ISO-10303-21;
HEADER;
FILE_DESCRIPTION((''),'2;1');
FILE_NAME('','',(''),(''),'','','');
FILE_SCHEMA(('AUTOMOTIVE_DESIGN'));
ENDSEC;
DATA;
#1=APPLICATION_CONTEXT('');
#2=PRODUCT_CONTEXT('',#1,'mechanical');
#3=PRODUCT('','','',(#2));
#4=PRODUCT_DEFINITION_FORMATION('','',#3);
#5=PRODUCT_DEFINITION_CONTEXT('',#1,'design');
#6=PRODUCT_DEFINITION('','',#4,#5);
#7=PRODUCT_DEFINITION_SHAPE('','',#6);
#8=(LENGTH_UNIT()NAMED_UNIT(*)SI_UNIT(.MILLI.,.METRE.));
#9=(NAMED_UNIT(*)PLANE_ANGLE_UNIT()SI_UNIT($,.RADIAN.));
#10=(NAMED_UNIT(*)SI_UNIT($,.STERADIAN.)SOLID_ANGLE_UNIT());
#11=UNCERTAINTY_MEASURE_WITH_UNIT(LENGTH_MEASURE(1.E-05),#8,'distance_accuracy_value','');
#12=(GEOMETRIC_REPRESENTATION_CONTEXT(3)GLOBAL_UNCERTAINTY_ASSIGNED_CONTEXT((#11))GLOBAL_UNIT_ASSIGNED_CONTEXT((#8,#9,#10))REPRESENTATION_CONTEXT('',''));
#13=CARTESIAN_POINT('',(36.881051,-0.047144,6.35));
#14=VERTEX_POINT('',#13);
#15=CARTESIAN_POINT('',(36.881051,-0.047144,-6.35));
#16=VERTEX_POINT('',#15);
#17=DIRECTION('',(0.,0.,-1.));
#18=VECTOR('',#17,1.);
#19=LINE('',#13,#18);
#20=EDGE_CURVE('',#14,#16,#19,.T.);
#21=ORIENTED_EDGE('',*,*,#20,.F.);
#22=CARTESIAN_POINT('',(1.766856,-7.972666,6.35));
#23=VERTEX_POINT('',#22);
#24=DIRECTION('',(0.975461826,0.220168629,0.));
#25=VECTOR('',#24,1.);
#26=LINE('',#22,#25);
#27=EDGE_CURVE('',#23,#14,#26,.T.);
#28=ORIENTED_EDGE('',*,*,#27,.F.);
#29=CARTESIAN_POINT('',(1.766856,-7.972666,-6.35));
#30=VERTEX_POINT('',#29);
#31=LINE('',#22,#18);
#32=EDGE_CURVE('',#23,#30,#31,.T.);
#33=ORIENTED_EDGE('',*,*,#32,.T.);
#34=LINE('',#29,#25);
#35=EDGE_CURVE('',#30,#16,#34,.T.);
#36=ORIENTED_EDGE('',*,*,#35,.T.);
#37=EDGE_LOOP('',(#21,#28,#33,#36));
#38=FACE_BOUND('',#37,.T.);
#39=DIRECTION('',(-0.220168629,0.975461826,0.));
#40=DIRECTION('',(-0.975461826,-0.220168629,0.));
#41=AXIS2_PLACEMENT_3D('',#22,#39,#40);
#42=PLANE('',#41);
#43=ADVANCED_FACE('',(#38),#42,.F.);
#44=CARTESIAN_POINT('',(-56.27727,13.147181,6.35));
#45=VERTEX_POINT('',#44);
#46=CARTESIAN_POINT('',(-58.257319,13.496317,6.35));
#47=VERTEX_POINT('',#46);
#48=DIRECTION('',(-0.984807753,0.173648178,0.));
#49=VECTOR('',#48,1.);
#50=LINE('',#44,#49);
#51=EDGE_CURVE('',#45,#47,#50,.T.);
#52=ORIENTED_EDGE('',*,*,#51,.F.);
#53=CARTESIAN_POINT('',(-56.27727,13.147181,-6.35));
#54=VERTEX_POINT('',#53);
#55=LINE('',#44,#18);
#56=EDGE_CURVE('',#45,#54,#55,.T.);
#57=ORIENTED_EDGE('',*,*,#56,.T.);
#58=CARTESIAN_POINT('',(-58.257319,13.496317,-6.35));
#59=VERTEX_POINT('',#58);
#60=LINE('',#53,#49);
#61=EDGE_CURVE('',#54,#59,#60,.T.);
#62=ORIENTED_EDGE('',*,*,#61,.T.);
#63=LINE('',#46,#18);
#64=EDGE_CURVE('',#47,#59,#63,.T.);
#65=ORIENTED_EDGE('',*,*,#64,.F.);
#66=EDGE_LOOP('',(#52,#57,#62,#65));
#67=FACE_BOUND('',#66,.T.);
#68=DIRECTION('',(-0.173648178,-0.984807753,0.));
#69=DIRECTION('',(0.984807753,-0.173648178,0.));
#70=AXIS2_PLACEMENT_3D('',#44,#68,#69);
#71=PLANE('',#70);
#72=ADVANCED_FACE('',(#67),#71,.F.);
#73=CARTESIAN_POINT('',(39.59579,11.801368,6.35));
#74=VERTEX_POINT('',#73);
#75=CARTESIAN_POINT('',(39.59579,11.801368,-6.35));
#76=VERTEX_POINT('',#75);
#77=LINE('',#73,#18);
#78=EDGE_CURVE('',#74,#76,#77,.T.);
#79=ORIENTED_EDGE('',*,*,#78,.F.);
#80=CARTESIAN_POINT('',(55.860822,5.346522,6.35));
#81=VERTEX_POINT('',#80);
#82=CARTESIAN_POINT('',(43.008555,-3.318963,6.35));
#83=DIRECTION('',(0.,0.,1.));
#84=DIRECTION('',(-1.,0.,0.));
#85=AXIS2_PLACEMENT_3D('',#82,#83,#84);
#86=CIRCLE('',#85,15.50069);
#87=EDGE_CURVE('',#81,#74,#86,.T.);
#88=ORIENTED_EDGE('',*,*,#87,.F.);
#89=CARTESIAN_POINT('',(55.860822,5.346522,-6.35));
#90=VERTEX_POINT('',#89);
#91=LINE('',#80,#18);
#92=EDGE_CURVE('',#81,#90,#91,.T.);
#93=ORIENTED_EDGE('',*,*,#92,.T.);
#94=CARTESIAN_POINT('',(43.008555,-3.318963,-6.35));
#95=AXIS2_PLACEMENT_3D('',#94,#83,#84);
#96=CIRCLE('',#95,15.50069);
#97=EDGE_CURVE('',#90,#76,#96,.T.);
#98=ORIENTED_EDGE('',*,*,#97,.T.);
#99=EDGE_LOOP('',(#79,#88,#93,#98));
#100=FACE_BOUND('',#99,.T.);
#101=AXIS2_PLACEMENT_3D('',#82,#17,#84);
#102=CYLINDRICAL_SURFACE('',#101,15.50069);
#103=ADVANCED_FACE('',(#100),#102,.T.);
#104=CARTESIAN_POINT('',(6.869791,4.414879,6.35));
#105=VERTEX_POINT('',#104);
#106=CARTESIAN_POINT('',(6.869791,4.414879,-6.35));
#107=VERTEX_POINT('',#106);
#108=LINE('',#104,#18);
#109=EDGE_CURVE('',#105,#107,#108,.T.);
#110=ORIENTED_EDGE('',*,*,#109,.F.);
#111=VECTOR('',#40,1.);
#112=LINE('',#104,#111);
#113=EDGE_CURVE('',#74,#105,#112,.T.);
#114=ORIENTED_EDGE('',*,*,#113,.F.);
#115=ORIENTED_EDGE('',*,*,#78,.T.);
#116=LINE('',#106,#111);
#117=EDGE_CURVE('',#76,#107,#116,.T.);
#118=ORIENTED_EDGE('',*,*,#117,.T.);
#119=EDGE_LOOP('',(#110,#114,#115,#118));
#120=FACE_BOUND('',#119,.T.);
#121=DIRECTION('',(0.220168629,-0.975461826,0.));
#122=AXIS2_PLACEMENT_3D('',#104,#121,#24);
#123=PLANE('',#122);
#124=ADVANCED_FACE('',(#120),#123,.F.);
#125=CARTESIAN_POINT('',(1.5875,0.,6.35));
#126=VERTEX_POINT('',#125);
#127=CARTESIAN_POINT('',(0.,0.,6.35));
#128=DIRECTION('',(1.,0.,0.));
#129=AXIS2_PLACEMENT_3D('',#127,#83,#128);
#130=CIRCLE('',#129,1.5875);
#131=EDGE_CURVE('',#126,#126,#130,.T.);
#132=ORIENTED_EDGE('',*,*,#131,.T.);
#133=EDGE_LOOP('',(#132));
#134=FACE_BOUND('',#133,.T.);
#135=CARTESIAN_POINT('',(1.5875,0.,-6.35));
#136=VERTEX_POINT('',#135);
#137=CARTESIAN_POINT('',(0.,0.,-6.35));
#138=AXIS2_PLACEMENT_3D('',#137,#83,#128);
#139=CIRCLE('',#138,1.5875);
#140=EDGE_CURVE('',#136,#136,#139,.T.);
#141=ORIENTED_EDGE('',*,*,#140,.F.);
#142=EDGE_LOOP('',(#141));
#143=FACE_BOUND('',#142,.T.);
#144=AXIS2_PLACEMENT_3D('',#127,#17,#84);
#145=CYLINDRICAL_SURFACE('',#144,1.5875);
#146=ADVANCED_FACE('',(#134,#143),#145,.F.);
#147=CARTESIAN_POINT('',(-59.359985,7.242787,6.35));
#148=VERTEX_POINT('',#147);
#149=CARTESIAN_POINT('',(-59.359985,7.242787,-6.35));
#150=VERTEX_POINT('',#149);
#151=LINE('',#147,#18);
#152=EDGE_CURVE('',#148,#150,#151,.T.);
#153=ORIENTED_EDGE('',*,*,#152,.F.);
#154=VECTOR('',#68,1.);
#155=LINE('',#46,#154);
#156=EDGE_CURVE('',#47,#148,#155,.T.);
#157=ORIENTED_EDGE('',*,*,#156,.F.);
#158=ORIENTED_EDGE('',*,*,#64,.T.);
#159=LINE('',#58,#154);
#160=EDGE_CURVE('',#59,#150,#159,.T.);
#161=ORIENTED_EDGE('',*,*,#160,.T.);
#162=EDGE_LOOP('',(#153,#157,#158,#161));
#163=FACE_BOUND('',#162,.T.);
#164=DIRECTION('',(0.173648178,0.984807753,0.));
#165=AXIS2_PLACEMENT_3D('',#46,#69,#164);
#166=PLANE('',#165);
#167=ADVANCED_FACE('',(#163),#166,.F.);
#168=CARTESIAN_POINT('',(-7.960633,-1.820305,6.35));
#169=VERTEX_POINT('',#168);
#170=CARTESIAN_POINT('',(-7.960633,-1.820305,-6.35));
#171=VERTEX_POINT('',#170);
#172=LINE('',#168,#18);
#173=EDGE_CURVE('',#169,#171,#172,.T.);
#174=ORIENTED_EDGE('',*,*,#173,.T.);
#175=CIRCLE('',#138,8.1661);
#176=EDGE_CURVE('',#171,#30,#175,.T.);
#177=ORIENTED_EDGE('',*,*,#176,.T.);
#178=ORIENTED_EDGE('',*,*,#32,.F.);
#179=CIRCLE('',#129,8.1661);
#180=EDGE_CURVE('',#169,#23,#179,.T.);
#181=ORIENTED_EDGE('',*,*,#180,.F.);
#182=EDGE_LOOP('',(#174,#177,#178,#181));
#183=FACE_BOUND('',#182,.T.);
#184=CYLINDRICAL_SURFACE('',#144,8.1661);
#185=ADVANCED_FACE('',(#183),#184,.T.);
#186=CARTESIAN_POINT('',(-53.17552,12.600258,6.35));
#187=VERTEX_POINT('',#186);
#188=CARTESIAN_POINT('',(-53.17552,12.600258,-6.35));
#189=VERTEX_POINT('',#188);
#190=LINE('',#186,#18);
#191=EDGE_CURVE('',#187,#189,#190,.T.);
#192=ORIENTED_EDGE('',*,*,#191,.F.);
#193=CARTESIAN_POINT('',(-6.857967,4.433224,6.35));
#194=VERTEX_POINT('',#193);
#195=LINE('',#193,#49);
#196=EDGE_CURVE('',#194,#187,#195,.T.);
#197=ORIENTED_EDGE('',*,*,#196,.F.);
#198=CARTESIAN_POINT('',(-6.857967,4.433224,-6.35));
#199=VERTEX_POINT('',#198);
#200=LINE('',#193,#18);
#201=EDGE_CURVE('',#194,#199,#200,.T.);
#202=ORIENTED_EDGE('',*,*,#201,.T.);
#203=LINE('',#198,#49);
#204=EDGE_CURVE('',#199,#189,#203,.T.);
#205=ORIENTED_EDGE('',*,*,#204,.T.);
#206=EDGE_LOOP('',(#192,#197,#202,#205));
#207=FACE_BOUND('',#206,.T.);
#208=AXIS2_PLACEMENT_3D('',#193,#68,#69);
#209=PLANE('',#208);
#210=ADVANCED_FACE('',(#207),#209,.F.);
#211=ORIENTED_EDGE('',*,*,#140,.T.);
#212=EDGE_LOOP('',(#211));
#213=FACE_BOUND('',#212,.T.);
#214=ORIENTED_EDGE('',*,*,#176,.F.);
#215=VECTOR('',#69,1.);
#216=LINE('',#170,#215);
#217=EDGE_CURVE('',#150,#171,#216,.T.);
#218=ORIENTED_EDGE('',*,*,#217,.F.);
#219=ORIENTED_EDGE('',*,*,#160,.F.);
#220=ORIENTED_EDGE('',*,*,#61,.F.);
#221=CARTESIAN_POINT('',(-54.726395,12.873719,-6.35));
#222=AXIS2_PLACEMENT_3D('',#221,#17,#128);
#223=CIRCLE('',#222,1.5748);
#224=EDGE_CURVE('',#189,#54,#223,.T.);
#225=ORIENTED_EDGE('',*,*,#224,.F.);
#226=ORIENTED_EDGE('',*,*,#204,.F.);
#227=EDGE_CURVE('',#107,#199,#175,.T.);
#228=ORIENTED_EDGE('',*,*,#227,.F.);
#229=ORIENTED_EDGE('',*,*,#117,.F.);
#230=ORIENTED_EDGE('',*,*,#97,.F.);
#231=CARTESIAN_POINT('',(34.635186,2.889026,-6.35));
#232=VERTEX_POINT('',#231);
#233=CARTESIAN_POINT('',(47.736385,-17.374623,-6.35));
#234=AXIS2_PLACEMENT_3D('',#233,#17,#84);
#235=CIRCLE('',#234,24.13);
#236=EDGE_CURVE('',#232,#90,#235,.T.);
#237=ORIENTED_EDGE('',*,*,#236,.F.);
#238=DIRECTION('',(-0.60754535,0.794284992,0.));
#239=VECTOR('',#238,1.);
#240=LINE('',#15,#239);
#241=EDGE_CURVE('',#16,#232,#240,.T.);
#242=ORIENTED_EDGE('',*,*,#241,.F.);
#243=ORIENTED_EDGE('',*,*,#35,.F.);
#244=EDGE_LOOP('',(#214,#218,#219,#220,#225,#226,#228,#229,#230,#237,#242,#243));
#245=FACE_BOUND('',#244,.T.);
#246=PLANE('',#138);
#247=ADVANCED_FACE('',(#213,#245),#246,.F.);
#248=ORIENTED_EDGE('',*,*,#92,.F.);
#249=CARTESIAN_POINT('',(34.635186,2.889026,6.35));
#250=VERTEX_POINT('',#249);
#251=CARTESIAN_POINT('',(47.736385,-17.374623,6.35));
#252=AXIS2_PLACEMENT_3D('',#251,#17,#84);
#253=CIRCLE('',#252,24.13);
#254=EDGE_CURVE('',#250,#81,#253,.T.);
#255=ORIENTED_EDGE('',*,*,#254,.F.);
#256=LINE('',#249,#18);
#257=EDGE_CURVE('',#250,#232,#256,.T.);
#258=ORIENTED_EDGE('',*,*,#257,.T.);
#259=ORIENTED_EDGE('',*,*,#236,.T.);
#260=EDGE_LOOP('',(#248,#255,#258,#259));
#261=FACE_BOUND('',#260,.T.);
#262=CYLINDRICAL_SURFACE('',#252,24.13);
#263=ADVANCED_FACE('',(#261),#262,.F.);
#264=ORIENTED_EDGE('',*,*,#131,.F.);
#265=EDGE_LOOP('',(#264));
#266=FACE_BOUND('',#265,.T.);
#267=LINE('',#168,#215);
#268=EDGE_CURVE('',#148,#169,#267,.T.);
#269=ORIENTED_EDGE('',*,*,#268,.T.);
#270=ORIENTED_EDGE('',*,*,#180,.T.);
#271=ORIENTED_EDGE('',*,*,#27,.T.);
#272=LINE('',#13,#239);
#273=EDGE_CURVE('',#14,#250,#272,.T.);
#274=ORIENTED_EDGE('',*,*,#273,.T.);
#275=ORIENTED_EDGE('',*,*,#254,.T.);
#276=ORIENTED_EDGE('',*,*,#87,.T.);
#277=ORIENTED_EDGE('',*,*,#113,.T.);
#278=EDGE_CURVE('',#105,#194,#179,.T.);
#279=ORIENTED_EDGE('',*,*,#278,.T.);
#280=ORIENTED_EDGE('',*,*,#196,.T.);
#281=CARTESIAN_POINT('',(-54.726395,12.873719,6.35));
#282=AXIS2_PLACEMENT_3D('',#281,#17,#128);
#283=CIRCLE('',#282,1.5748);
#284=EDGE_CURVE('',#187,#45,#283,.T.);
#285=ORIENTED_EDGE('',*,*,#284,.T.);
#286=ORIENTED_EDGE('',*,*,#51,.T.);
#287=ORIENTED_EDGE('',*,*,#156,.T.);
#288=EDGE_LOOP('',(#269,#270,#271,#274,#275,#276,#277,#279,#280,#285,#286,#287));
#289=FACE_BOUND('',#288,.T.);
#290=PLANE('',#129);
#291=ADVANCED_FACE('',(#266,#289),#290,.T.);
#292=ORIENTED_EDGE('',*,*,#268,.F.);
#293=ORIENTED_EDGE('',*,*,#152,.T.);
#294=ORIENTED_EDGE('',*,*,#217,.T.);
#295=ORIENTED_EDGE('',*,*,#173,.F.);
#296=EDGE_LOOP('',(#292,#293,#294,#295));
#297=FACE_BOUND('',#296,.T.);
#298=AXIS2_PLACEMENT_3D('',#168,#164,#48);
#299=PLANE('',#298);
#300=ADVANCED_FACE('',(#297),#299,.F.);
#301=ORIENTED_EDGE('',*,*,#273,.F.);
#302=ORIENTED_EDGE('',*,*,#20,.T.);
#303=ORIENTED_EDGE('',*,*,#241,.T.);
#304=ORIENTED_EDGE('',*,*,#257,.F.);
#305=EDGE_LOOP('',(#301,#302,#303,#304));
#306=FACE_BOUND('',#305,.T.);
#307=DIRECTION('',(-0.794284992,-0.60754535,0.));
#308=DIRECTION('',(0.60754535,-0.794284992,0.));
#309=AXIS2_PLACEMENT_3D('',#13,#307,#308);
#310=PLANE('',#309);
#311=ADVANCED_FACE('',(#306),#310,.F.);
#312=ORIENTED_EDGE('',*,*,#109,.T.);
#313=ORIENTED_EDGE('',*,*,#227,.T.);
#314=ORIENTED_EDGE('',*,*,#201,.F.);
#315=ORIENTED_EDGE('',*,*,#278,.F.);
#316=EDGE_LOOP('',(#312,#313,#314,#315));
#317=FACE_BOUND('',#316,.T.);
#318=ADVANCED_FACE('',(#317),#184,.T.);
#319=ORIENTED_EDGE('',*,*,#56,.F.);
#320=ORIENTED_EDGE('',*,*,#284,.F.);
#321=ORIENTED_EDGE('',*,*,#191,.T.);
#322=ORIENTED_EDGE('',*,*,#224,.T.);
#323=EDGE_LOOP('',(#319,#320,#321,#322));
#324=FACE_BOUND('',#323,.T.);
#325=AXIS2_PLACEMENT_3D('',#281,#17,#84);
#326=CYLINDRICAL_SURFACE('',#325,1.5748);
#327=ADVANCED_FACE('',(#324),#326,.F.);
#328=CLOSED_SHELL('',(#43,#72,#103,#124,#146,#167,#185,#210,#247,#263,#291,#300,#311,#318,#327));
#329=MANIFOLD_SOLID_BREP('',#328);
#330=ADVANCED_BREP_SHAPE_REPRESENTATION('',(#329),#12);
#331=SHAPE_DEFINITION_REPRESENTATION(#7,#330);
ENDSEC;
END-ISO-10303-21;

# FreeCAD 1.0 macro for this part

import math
import FreeCAD as App
import Part
import Sketcher

V = App.Vector
Q = App.Units.Quantity

doc = App.newDocument("Part")
body = doc.addObject("PartDesign::Body", "Body")

sketch1 = body.newObject("Sketcher::SketchObject", "Sketch")
sketch1.AttachmentSupport = (doc.getObject("XY_Plane"), [""])
sketch1.MapMode = "FlatFace"
sketch1.addGeometry(Part.LineSegment(V(-6.9, 4.4, 0), V(-53.2, 12.6, 0)), False)
sketch1.addGeometry(Part.ArcOfCircle(Part.Circle(V(-54.7, 12.9, 0), V(0, 0, 1), 1.6), math.radians(170), math.radians(350)), False)
sketch1.addGeometry(Part.LineSegment(V(-56.3, 13.1, 0), V(-58.3, 13.5, 0)), False)
sketch1.addGeometry(Part.LineSegment(V(-58.3, 13.5, 0), V(-59.4, 7.2, 0)), False)
sketch1.addGeometry(Part.LineSegment(V(-59.4, 7.2, 0), V(-8, -1.8, 0)), False)
sketch1.addGeometry(Part.ArcOfCircle(Part.Circle(V(0, 0, 0), V(0, 0, 1), 8.2), math.radians(-167), math.radians(-78)), False)
sketch1.addGeometry(Part.LineSegment(V(1.8, -8, 0), V(36.9, 0, 0)), False)
sketch1.addGeometry(Part.LineSegment(V(36.9, 0, 0), V(34.6, 2.9, 0)), False)
sketch1.addGeometry(Part.ArcOfCircle(Part.Circle(V(47.7, -17.4, 0), V(0, 0, 1), 24.1), math.radians(70), math.radians(123)), False)
sketch1.addGeometry(Part.ArcOfCircle(Part.Circle(V(43, -3.3, 0), V(0, 0, 1), 15.5), math.radians(34), math.radians(103)), False)
sketch1.addGeometry(Part.LineSegment(V(39.6, 11.8, 0), V(6.9, 4.4, 0)), False)
sketch1.addGeometry(Part.ArcOfCircle(Part.Circle(V(0, 0, 0), V(0, 0, 1), 8.2), math.radians(33), math.radians(147)), False)
sketch1.addGeometry(Part.Circle(V(0, 0, 0), V(0, 0, 1), 1.6), False)
sketch1.addConstraint(Sketcher.Constraint("Coincident", 0, 2, 1, 2))
sketch1.addConstraint(Sketcher.Constraint("Coincident", 1, 1, 2, 1))
sketch1.addConstraint(Sketcher.Constraint("Coincident", 2, 2, 3, 1))
sketch1.addConstraint(Sketcher.Constraint("Coincident", 3, 2, 4, 1))
sketch1.addConstraint(Sketcher.Constraint("Coincident", 4, 2, 5, 1))
sketch1.addConstraint(Sketcher.Constraint("Coincident", 5, 2, 6, 1))
sketch1.addConstraint(Sketcher.Constraint("Coincident", 6, 2, 7, 1))
sketch1.addConstraint(Sketcher.Constraint("Coincident", 7, 2, 8, 2))
sketch1.addConstraint(Sketcher.Constraint("Coincident", 8, 1, 9, 1))
sketch1.addConstraint(Sketcher.Constraint("Tangent", 9, 2, 10, 1))
sketch1.addConstraint(Sketcher.Constraint("Coincident", 10, 2, 11, 1))
sketch1.addConstraint(Sketcher.Constraint("Coincident", 11, 2, 0, 1))
sketch1.addConstraint(Sketcher.Constraint("Coincident", 5, 3, -1, 1))
sketch1.addConstraint(Sketcher.Constraint("Coincident", 11, 3, -1, 1))
sketch1.addConstraint(Sketcher.Constraint("Coincident", 12, 3, -1, 1))
sketch1.addConstraint(Sketcher.Constraint("Equal", 5, 11))
sketch1.addConstraint(Sketcher.Constraint("Parallel", 0, 2))
sketch1.addConstraint(Sketcher.Constraint("Perpendicular", 2, 3))
sketch1.addConstraint(Sketcher.Constraint("Perpendicular", 3, 4))
sketch1.addConstraint(Sketcher.Constraint("Parallel", 6, 10))
sketch1.addConstraint(Sketcher.Constraint("Radius", 8, Q("0.95 in")))
sketch1.addConstraint(Sketcher.Constraint("Diameter", 12, Q("0.125 in")))
sketch1.addConstraint(Sketcher.Constraint("Angle", 0, Q("170 deg")))
sketch1.addConstraint(Sketcher.Constraint("Radius", 1, Q("0.062 in")))
sketch1.addConstraint(Sketcher.Constraint("Radius", 5, Q("0.3215 in")))
sketch1.addConstraint(Sketcher.Constraint("Distance", 3, Q("0.25 in")))
sketch1.addConstraint(Sketcher.Constraint("Radius", 9, 15.50069))
sketch1.addConstraint(Sketcher.Constraint("DistanceX", 2, 2, 0, 2, 5.081799))
sketch1.addConstraint(Sketcher.Constraint("DistanceX", 5, 2, 9, 3, 41.241699))
sketch1.addConstraint(Sketcher.Constraint("DistanceX", 7, 2, 8, 3, 13.101199))
sketch1.addConstraint(Sketcher.Constraint("Distance", 4, 52.19227))
sketch1.addConstraint(Sketcher.Constraint("Distance", 7, 3.696621))
sketch1.addConstraint(Sketcher.Constraint("DistanceY", -1, 1, 1, 3, 12.873719))
sketch1.addConstraint(Sketcher.Constraint("DistanceX", 0, 2, -1, 1, 53.17552))
sketch1.addConstraint(Sketcher.Constraint("DistanceY", -1, 1, 0, 2, 12.600258))
sketch1.addConstraint(Sketcher.Constraint("DistanceX", -1, 1, 6, 2, 36.881051))
sketch1.addConstraint(Sketcher.Constraint("DistanceX", -1, 1, 8, 1, 55.860822))
sketch1.addConstraint(Sketcher.Constraint("DistanceY", -1, 1, 8, 1, 5.346522))
sketch1.addConstraint(Sketcher.Constraint("DistanceX", -1, 1, 9, 2, 39.59579))
sketch1.addConstraint(Sketcher.Constraint("DistanceX", -1, 1, 10, 2, 6.869791))
pad1 = body.newObject("PartDesign::Pad", "Pad")
pad1.Profile = sketch1
pad1.Length = Q("0.5 in")
pad1.Midplane = True

doc.recompute()
